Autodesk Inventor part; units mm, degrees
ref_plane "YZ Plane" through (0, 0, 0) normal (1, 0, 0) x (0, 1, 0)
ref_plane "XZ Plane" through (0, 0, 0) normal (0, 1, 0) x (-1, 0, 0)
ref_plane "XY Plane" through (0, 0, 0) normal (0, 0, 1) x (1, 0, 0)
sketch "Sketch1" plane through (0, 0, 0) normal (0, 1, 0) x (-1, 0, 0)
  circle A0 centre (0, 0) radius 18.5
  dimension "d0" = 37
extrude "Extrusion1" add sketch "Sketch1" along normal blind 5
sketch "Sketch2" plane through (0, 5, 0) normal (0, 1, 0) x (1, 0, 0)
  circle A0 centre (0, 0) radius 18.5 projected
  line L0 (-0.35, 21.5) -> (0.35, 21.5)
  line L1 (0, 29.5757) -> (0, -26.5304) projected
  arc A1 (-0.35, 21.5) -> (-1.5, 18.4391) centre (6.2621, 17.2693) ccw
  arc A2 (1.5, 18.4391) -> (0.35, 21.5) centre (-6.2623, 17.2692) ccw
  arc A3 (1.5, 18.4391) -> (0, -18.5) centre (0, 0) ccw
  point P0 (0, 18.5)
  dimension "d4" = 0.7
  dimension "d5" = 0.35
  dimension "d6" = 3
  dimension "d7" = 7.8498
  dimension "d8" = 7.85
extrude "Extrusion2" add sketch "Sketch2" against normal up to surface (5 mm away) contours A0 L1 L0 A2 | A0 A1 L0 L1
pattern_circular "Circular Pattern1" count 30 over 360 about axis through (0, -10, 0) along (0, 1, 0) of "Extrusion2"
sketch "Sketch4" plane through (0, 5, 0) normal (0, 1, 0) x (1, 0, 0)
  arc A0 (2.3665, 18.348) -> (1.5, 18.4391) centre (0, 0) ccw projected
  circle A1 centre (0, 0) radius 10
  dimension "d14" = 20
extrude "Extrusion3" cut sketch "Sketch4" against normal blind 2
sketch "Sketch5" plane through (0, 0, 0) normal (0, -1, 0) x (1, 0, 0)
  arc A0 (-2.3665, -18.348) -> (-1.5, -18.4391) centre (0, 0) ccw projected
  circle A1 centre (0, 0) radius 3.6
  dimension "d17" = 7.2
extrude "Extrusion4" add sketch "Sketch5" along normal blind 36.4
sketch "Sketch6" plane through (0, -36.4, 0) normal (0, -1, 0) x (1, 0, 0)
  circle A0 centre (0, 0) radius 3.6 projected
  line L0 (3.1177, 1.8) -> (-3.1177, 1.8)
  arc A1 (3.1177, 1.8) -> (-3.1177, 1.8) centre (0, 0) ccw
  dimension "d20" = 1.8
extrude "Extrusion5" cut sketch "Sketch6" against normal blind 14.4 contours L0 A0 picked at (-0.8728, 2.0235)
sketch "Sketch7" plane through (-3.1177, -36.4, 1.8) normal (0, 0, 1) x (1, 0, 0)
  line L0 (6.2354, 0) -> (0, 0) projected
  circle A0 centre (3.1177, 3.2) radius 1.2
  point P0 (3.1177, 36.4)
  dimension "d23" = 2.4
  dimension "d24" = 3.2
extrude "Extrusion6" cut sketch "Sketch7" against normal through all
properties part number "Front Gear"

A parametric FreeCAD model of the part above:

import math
import FreeCAD as App
import Part
import Sketcher
Q = App.Units.Quantity

doc = App.newDocument("Part")
body = doc.addObject("PartDesign::Body", "Body")

# Sketch on XZ plane
sketch1 = doc.addObject("Sketcher::SketchObject", "Sketch")
body.addObject(sketch1)
sketch1.AttachmentSupport = (doc.XZ_Plane, [""])
sketch1.MapMode = "FlatFace"
sketch1.addGeometry(Part.Circle(App.Vector(0, 0, 0), App.Vector(0, 0, 1), 18), False)
sketch1.addConstraint(Sketcher.Constraint("Coincident", 0, 3, -1, 1))
sketch1.addConstraint(Sketcher.Constraint("Diameter", 0, Q("37 mm")))
pad1 = doc.addObject("PartDesign::Pad", "Pad")
body.addObject(pad1)
pad1.Profile = sketch1
pad1.Length = 5
pad1.Reversed = True

# Sketch on XZ plane
sketch2 = doc.addObject("Sketcher::SketchObject", "Sketch001")
body.addObject(sketch2)
sketch2.AttachmentSupport = (doc.XZ_Plane, [""])
sketch2.MapMode = "FlatFace"
sketch2.AttachmentOffset = App.Placement(App.Vector(0, 0, -5), App.Rotation())
sketch2.addGeometry(Part.ArcOfCircle(Part.Circle(App.Vector(-6.3, -17.3, 0), App.Vector(0, 0, 1), 7.8), math.radians(-33), math.radians(-9)), False)
sketch2.addGeometry(Part.LineSegment(App.Vector(0.3, -21.5, 0), App.Vector(-0.3, -21.5, 0)), False)
sketch2.addGeometry(Part.ArcOfCircle(Part.Circle(App.Vector(6.3, -17.3, 0), App.Vector(0, 0, 1), 7.8), math.radians(-171), math.radians(-147)), False)
sketch2.addGeometry(Part.ArcOfCircle(Part.Circle(App.Vector(0, 0, 0), App.Vector(0, 0, 1), 18.5), math.radians(-94.65), math.radians(-85.35)), False)
sketch2.addConstraint(Sketcher.Constraint("Coincident", 0, 1, 1, 1))
sketch2.addConstraint(Sketcher.Constraint("Coincident", 1, 2, 2, 2))
sketch2.addConstraint(Sketcher.Constraint("Coincident", 2, 1, 3, 1))
sketch2.addConstraint(Sketcher.Constraint("Coincident", 3, 2, 0, 2))
sketch2.addConstraint(Sketcher.Constraint("Horizontal", 1))
sketch2.addConstraint(Sketcher.Constraint("Coincident", 3, 3, -1, 1))
sketch2.addConstraint(Sketcher.Constraint("Symmetric", 0, 3, 2, 3, -2))
sketch2.addConstraint(Sketcher.Constraint("Horizontal", 2, 1, 3, 2))
sketch2.addConstraint(Sketcher.Constraint("Radius", 0, Q("7.85 mm")))
sketch2.addConstraint(Sketcher.Constraint("DistanceX", 1, 2, 1, 1, Q("0.7 mm")))
sketch2.addConstraint(Sketcher.Constraint("DistanceX", 2, 1, 3, 2, Q("3 mm")))
sketch2.addConstraint(Sketcher.Constraint("Radius", 3, Q("18.5 mm")))
sketch2.addConstraint(Sketcher.Constraint("DistanceY", 0, 1, -1, 1, Q("21.5 mm")))
pad2 = doc.addObject("PartDesign::Pad", "Pad001")
body.addObject(pad2)
pad2.Profile = sketch2
pad2.Length = 5
doc.recompute()

polarpattern = doc.addObject("PartDesign::PolarPattern", "PolarPattern")
body.addObject(polarpattern)
polarpattern.Originals = [pad2]
polarpattern.Axis = (doc.Y_Axis, [""])
polarpattern.Angle = 360
polarpattern.Occurrences = 30
body.Tip = polarpattern

# Sketch on XZ plane
sketch3 = doc.addObject("Sketcher::SketchObject", "Sketch002")
body.addObject(sketch3)
sketch3.AttachmentSupport = (doc.XZ_Plane, [""])
sketch3.MapMode = "FlatFace"
sketch3.AttachmentOffset = App.Placement(App.Vector(0, 0, -5), App.Rotation())
sketch3.addGeometry(Part.Circle(App.Vector(0, 0, 0), App.Vector(0, 0, 1), 10), False)
sketch3.addConstraint(Sketcher.Constraint("Coincident", 0, 3, -1, 1))
sketch3.addConstraint(Sketcher.Constraint("Diameter", 0, Q("20 mm")))
pocket1 = doc.addObject("PartDesign::Pocket", "Pocket")
body.addObject(pocket1)
pocket1.Profile = sketch3
pocket1.Length = 2
pocket1.Reversed = True

# Sketch on XZ plane
sketch4 = doc.addObject("Sketcher::SketchObject", "Sketch003")
body.addObject(sketch4)
sketch4.AttachmentSupport = (doc.XZ_Plane, [""])
sketch4.MapMode = "FlatFace"
sketch4.addGeometry(Part.Circle(App.Vector(0, 0, 0), App.Vector(0, 0, 1), 3.6), False)
sketch4.addConstraint(Sketcher.Constraint("Coincident", 0, 3, -1, 1))
sketch4.addConstraint(Sketcher.Constraint("Diameter", 0, Q("7.2 mm")))
pad3 = doc.addObject("PartDesign::Pad", "Pad002")
body.addObject(pad3)
pad3.Profile = sketch4
pad3.Length = 36.4

# Sketch on XZ plane
sketch5 = doc.addObject("Sketcher::SketchObject", "Sketch004")
body.addObject(sketch5)
sketch5.AttachmentSupport = (doc.XZ_Plane, [""])
sketch5.MapMode = "FlatFace"
sketch5.AttachmentOffset = App.Placement(App.Vector(0, 0, 36.4), App.Rotation())
sketch5.addGeometry(Part.LineSegment(App.Vector(-3.1, 1.8, 0), App.Vector(3.1, 1.8, 0)), False)
sketch5.addGeometry(Part.ArcOfCircle(Part.Circle(App.Vector(0, 0, 0), App.Vector(0, 0, 1), 3.6), math.radians(30), math.radians(150)), False)
sketch5.addConstraint(Sketcher.Constraint("Coincident", 0, 1, 1, 2))
sketch5.addConstraint(Sketcher.Constraint("Coincident", 1, 1, 0, 2))
sketch5.addConstraint(Sketcher.Constraint("Horizontal", 0))
sketch5.addConstraint(Sketcher.Constraint("Coincident", 1, 3, -1, 1))
sketch5.addConstraint(Sketcher.Constraint("DistanceY", -1, 1, 0, 1, Q("1.8 mm")))
sketch5.addConstraint(Sketcher.Constraint("Radius", 1, Q("3.6 mm")))
pocket2 = doc.addObject("PartDesign::Pocket", "Pocket001")
body.addObject(pocket2)
pocket2.Profile = sketch5
pocket2.Length = 14.4

# Sketch on XY plane
sketch6 = doc.addObject("Sketcher::SketchObject", "Sketch005")
body.addObject(sketch6)
sketch6.AttachmentSupport = (doc.XY_Plane, [""])
sketch6.MapMode = "FlatFace"
sketch6.AttachmentOffset = App.Placement(App.Vector(0, 0, 1.8), App.Rotation())
sketch6.addGeometry(Part.Circle(App.Vector(0, -33.2, 0), App.Vector(0, 0, 1), 1.2), False)
sketch6.addConstraint(Sketcher.Constraint("PointOnObject", 0, 3, -2))
sketch6.addConstraint(Sketcher.Constraint("Diameter", 0, Q("2.4 mm")))
sketch6.addConstraint(Sketcher.Constraint("DistanceY", 0, 3, -1, 1, Q("33.2 mm")))
pocket3 = doc.addObject("PartDesign::Pocket", "Pocket002")
body.addObject(pocket3)
pocket3.Profile = sketch6
pocket3.Type = "ThroughAll"

doc.recompute()
